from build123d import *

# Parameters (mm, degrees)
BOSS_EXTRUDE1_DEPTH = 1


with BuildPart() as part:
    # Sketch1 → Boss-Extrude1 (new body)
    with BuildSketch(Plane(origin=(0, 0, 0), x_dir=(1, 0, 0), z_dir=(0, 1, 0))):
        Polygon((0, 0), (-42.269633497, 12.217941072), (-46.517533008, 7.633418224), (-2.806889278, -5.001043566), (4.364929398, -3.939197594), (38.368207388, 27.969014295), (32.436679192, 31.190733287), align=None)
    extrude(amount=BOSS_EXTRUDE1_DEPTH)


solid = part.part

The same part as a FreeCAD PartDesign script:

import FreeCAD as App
import Part
import Sketcher
Q = App.Units.Quantity


def add_polygon(sketch, points):
    """Adds a closed chain of lines whose ends are joined by coincident constraints."""
    first, n = sketch.GeometryCount, len(points)
    for a, b in zip(points, points[1:] + points[:1]):
        sketch.addGeometry(Part.LineSegment(App.Vector(*a, 0), App.Vector(*b, 0)), False)
    for i in range(n):
        sketch.addConstraint(Sketcher.Constraint("Coincident", first + i, 2, first + (i + 1) % n, 1))

doc = App.newDocument("Part")
body = doc.addObject("PartDesign::Body", "Body")

# Sketch on XZ plane
sketch1 = doc.addObject("Sketcher::SketchObject", "Sketch")
body.addObject(sketch1)
sketch1.AttachmentSupport = (doc.XZ_Plane, [""])
sketch1.MapMode = "FlatFace"
add_polygon(sketch1, [(0, 0), (-42.269633, -12.217941), (-46.517533, -7.633418), (-2.806889, 5.001044), (4.364929, 3.939198), (38.368207, -27.969014), (32.436679, -31.190733)])  # lines 0-6
sketch1.addConstraint([
    Sketcher.Constraint("Coincident", 6, 2, -1, 1),
    Sketcher.Constraint("Parallel", 0, 2),
    Sketcher.Constraint("Distance", 0, Q("44 mm")),
    Sketcher.Constraint("Distance", 6, Q("45 mm")),
    Sketcher.Constraint("Distance", 2, Q("45.5 mm")),
    Sketcher.Constraint("Distance", 1, Q("6.25 mm")),
    Sketcher.Constraint("Distance", 3, Q("7.25 mm")),
    Sketcher.Constraint("Distance", 4, Q("46.63 mm")),
    Sketcher.Constraint("Distance", 5, Q("6.75 mm")),
    Sketcher.Constraint("DistanceX", 1, 2, 0, 2, Q("4.2479 mm")),
    Sketcher.Constraint("DistanceY", 0, 2, -1, 1, Q("12.217941 mm")),
    Sketcher.Constraint("DistanceX", -1, 1, 3, 2, Q("4.364929 mm")),
    Sketcher.Constraint("DistanceX", -1, 1, 5, 2, Q("32.436679 mm")),
])
pad1 = doc.addObject("PartDesign::Pad", "Pad")
body.addObject(pad1)
pad1.Profile = sketch1
pad1.Length = 1
pad1.Reversed = True

doc.recompute()
